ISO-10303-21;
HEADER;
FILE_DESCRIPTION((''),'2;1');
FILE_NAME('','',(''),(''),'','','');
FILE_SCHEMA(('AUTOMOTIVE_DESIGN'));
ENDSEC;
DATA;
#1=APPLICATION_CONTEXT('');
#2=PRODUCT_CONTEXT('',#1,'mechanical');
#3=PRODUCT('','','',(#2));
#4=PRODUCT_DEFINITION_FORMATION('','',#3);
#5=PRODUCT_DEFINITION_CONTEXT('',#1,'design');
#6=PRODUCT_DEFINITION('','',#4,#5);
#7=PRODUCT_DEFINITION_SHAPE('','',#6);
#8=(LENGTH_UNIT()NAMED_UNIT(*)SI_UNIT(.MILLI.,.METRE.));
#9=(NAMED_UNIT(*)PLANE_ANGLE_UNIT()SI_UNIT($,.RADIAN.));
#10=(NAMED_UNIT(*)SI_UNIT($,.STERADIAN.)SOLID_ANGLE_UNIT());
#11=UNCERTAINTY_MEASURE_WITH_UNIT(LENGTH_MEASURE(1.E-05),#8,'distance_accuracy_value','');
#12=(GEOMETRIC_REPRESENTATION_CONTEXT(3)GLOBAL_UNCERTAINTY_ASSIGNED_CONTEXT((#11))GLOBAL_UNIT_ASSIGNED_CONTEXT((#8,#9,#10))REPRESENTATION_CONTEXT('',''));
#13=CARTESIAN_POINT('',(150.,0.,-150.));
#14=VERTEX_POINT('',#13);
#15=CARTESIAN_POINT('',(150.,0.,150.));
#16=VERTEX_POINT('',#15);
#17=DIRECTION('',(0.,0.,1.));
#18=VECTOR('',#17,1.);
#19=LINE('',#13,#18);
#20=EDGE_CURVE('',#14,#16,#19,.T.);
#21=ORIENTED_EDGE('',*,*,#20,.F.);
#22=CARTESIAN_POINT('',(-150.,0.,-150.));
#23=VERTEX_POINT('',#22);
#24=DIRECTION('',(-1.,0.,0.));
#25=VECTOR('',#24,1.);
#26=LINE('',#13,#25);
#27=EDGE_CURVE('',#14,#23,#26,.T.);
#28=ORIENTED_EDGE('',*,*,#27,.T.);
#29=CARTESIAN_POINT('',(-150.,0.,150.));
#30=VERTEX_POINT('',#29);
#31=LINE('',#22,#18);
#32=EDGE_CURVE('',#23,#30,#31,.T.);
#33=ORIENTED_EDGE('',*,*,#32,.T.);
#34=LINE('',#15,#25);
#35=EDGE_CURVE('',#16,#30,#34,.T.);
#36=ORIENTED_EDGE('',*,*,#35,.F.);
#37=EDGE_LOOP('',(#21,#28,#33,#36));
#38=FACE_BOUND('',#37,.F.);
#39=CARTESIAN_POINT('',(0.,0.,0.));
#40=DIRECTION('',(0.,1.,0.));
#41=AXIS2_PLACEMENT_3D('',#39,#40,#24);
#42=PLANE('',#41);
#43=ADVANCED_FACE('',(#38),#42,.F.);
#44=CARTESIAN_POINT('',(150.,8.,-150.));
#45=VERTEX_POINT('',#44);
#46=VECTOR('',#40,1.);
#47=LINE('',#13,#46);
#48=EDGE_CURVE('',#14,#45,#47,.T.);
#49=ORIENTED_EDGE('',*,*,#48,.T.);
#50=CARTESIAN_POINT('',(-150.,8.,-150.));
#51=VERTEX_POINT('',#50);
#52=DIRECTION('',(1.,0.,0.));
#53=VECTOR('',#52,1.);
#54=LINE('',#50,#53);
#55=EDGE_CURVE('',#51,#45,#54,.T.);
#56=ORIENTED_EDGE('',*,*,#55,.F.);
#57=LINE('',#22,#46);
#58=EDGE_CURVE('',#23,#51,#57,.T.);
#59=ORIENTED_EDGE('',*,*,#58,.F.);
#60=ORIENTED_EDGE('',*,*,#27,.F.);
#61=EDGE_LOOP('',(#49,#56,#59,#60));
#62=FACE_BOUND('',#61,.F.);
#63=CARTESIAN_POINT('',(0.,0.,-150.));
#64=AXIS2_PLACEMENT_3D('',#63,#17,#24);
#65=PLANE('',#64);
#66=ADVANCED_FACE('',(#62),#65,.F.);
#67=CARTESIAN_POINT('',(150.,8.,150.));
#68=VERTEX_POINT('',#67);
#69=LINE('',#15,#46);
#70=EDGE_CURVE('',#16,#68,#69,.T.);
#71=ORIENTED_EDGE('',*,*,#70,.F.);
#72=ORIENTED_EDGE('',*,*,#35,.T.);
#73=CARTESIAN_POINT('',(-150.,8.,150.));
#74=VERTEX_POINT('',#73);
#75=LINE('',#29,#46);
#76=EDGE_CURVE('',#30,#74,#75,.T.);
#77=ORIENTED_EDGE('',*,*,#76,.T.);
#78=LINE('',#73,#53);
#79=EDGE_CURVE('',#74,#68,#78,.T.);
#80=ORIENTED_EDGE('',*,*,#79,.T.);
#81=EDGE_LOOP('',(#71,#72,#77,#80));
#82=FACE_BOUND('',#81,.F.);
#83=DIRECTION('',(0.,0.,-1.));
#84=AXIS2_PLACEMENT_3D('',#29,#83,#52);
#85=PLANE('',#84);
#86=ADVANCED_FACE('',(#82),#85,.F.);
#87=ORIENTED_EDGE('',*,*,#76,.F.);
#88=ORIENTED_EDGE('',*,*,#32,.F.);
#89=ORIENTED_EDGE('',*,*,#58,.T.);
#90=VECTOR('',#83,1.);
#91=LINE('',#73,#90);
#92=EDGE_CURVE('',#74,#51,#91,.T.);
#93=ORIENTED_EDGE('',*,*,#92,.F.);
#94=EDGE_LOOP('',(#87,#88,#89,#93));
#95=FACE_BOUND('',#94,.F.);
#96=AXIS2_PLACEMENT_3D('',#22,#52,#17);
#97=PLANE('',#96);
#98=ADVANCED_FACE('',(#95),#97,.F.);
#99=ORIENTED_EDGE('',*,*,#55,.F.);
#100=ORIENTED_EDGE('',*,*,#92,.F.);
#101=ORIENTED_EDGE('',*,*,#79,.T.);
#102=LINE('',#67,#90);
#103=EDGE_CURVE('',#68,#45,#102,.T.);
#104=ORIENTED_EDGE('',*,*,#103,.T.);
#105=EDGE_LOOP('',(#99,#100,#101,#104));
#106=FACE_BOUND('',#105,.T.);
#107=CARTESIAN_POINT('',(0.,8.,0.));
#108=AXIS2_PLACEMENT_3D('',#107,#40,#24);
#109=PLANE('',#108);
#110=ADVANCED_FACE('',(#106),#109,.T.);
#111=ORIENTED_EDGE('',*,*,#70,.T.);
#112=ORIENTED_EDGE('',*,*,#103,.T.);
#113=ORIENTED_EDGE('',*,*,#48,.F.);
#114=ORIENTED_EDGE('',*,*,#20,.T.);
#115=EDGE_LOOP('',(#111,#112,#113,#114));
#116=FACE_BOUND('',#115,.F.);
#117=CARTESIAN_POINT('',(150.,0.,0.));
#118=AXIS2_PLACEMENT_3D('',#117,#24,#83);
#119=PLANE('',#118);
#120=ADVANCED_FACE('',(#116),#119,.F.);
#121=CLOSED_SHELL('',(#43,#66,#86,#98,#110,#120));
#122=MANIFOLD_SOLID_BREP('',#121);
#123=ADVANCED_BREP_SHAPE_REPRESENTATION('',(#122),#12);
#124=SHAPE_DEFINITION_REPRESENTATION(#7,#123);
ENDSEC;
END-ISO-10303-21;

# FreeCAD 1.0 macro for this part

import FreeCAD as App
import Part
import Sketcher


def add_polygon(sketch, points):
    """Adds a closed chain of lines whose ends are joined by coincident constraints."""
    first, n = sketch.GeometryCount, len(points)
    for a, b in zip(points, points[1:] + points[:1]):
        sketch.addGeometry(Part.LineSegment(App.Vector(*a, 0), App.Vector(*b, 0)), False)
    for i in range(n):
        sketch.addConstraint(Sketcher.Constraint("Coincident", first + i, 2, first + (i + 1) % n, 1))

doc = App.newDocument("Part")
body = doc.addObject("PartDesign::Body", "Body")

sketch1 = body.newObject("Sketcher::SketchObject", "Sketch")
sketch1.AttachmentSupport = (doc.getObject("XZ_Plane"), [""])
sketch1.MapMode = "FlatFace"
add_polygon(sketch1, [(-150, -150), (-150, 150), (150, 150), (150, -150)])
sketch1.addConstraint([
    Sketcher.Constraint("Vertical", 0),
    Sketcher.Constraint("Horizontal", 1),
    Sketcher.Constraint("Vertical", 2),
    Sketcher.Constraint("Horizontal", 3),
    Sketcher.Constraint("Symmetric", 0, 2, 2, 2, -1, 1),
    Sketcher.Constraint("Equal", 3, 0),
    Sketcher.Constraint("DistanceX", 1, 1, 1, 2, 300.0),
])
pad1 = body.newObject("PartDesign::Pad", "Pad")
pad1.Profile = sketch1
pad1.Length = 8
pad1.Reversed = True

doc.recompute()
